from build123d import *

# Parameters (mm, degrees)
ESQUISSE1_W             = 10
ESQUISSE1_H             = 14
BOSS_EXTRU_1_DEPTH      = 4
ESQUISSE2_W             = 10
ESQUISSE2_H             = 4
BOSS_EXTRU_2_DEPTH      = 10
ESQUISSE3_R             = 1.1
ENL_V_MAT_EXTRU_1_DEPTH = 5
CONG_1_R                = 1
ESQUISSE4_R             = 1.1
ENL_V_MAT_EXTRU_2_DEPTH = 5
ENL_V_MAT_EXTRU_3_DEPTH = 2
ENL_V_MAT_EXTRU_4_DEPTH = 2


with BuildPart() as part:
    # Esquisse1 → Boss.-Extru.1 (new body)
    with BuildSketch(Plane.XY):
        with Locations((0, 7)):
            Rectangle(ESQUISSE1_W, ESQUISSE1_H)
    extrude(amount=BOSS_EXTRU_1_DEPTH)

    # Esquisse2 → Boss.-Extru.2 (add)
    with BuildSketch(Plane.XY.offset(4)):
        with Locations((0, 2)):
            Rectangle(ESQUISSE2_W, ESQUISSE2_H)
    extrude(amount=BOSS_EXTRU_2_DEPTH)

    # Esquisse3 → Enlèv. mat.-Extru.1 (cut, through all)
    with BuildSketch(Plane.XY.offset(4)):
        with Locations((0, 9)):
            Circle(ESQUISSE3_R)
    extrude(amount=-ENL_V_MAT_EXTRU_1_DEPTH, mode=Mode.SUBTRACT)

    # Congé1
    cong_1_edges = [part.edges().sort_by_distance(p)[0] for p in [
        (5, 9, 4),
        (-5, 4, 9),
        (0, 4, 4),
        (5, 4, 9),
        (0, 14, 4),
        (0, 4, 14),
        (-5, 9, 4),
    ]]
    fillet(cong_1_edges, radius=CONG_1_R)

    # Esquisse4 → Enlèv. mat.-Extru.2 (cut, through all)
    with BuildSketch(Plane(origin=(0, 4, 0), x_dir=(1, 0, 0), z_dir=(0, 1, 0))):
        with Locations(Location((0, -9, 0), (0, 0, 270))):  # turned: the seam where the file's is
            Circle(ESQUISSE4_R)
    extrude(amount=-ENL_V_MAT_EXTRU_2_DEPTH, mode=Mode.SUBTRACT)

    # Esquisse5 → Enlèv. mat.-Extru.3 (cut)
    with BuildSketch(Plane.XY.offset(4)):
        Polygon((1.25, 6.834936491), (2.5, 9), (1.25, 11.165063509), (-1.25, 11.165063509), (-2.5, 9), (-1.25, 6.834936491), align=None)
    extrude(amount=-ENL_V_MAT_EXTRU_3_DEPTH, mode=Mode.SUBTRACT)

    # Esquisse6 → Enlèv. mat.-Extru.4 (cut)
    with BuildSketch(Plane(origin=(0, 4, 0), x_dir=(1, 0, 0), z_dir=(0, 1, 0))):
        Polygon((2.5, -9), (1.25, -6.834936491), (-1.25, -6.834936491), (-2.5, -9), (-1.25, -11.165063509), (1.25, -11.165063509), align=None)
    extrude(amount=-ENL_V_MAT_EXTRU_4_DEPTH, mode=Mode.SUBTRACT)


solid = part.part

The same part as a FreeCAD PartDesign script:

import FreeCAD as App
import Part
import Sketcher

V = App.Vector
Q = App.Units.Quantity


def edges_at(feature, points):
    """Names of the edges that pass closest to the given points."""
    edges = feature.Shape.Edges
    near = lambda p: min(range(len(edges)), key=lambda i: edges[i].distToShape(Part.Vertex(*p))[0])
    return sorted({f"Edge{near(p) + 1}" for p in points})

doc = App.newDocument("Part")
body = doc.addObject("PartDesign::Body", "Body")

# Sketch on XY plane
sketch1 = body.newObject("Sketcher::SketchObject", "Sketch")
sketch1.AttachmentSupport = (doc.getObject("XY_Plane"), [""])
sketch1.MapMode = "FlatFace"
sketch1.addGeometry(Part.LineSegment(V(-5, 14, 0), V(-5, 0, 0)), False)
sketch1.addGeometry(Part.LineSegment(V(-5, 0, 0), V(5, 0, 0)), False)
sketch1.addGeometry(Part.LineSegment(V(5, 0, 0), V(5, 14, 0)), False)
sketch1.addGeometry(Part.LineSegment(V(5, 14, 0), V(-5, 14, 0)), False)
sketch1.addConstraint(Sketcher.Constraint("Coincident", 0, 2, 1, 1))
sketch1.addConstraint(Sketcher.Constraint("Coincident", 1, 2, 2, 1))
sketch1.addConstraint(Sketcher.Constraint("Coincident", 2, 2, 3, 1))
sketch1.addConstraint(Sketcher.Constraint("Coincident", 3, 2, 0, 1))
sketch1.addConstraint(Sketcher.Constraint("Vertical", 0))
sketch1.addConstraint(Sketcher.Constraint("Horizontal", 1))
sketch1.addConstraint(Sketcher.Constraint("Vertical", 2))
sketch1.addConstraint(Sketcher.Constraint("Horizontal", 3))
sketch1.addConstraint(Sketcher.Constraint("Symmetric", 0, 2, 1, 2, -1, 1))
sketch1.addConstraint(Sketcher.Constraint("DistanceX", 1, 1, 1, 2, Q("10 mm")))
sketch1.addConstraint(Sketcher.Constraint("DistanceY", 0, 2, 0, 1, Q("14 mm")))
pad1 = body.newObject("PartDesign::Pad", "Pad")
pad1.Profile = sketch1
pad1.Length = 4

# Sketch on XY plane
sketch2 = body.newObject("Sketcher::SketchObject", "Sketch001")
sketch2.AttachmentSupport = (doc.getObject("XY_Plane"), [""])
sketch2.MapMode = "FlatFace"
sketch2.AttachmentOffset = App.Placement(V(0, 0, 4), App.Rotation())
sketch2.addGeometry(Part.LineSegment(V(-5, 4, 0), V(-5, 0, 0)), False)
sketch2.addGeometry(Part.LineSegment(V(-5, 0, 0), V(5, 0, 0)), False)
sketch2.addGeometry(Part.LineSegment(V(5, 0, 0), V(5, 4, 0)), False)
sketch2.addGeometry(Part.LineSegment(V(5, 4, 0), V(-5, 4, 0)), False)
sketch2.addConstraint(Sketcher.Constraint("Coincident", 0, 2, 1, 1))
sketch2.addConstraint(Sketcher.Constraint("Coincident", 1, 2, 2, 1))
sketch2.addConstraint(Sketcher.Constraint("Coincident", 2, 2, 3, 1))
sketch2.addConstraint(Sketcher.Constraint("Coincident", 3, 2, 0, 1))
sketch2.addConstraint(Sketcher.Constraint("Vertical", 0))
sketch2.addConstraint(Sketcher.Constraint("Horizontal", 1))
sketch2.addConstraint(Sketcher.Constraint("Vertical", 2))
sketch2.addConstraint(Sketcher.Constraint("Horizontal", 3))
sketch2.addConstraint(Sketcher.Constraint("Symmetric", 0, 2, 1, 2, -1, 1))
sketch2.addConstraint(Sketcher.Constraint("DistanceX", 1, 1, 1, 2, Q("10 mm")))
sketch2.addConstraint(Sketcher.Constraint("DistanceY", 0, 2, 0, 1, Q("4 mm")))
pad2 = body.newObject("PartDesign::Pad", "Pad001")
pad2.Profile = sketch2
pad2.Length = 10

# Sketch on XY plane
sketch3 = body.newObject("Sketcher::SketchObject", "Sketch002")
sketch3.AttachmentSupport = (doc.getObject("XY_Plane"), [""])
sketch3.MapMode = "FlatFace"
sketch3.AttachmentOffset = App.Placement(V(0, 0, 4), App.Rotation())
sketch3.addGeometry(Part.Circle(V(0, 9, 0), V(0, 0, 1), 1.1), False)
sketch3.addConstraint(Sketcher.Constraint("PointOnObject", 0, 3, -2))
sketch3.addConstraint(Sketcher.Constraint("Diameter", 0, Q("2.2 mm")))
sketch3.addConstraint(Sketcher.Constraint("DistanceY", -1, 1, 0, 3, Q("9 mm")))
pocket1 = body.newObject("PartDesign::Pocket", "Pocket")
pocket1.Profile = sketch3
pocket1.Type = "ThroughAll"
doc.recompute()

fillet = body.newObject("PartDesign::Fillet", "Fillet")
fillet.Base = (pocket1, edges_at(pocket1, [
    (5, 9, 4),
    (-5, 4, 9),
    (0, 4, 4),
    (5, 4, 9),
    (0, 14, 4),
    (0, 4, 14),
    (-5, 9, 4),
]))
fillet.Radius = 1

# Sketch on XZ plane
sketch4 = body.newObject("Sketcher::SketchObject", "Sketch003")
sketch4.AttachmentSupport = (doc.getObject("XZ_Plane"), [""])
sketch4.MapMode = "FlatFace"
sketch4.AttachmentOffset = App.Placement(V(0, 0, -4), App.Rotation())
sketch4.addGeometry(Part.Circle(V(0, 9, 0), V(0, 0, 1), 1.1), False)
sketch4.addConstraint(Sketcher.Constraint("PointOnObject", 0, 3, -2))
sketch4.addConstraint(Sketcher.Constraint("Diameter", 0, Q("2.2 mm")))
sketch4.addConstraint(Sketcher.Constraint("DistanceY", -1, 1, 0, 3, Q("9 mm")))
pocket2 = body.newObject("PartDesign::Pocket", "Pocket001")
pocket2.Profile = sketch4
pocket2.Type = "ThroughAll"
pocket2.Reversed = True

# Sketch on XY plane
sketch5 = body.newObject("Sketcher::SketchObject", "Sketch004")
sketch5.AttachmentSupport = (doc.getObject("XY_Plane"), [""])
sketch5.MapMode = "FlatFace"
sketch5.AttachmentOffset = App.Placement(V(0, 0, 4), App.Rotation())
sketch5.addGeometry(Part.LineSegment(V(1.25, 6.834936, 0), V(2.5, 9, 0)), False)
sketch5.addGeometry(Part.LineSegment(V(2.5, 9, 0), V(1.25, 11.165064, 0)), False)
sketch5.addGeometry(Part.LineSegment(V(1.25, 11.165064, 0), V(-1.25, 11.165064, 0)), False)
sketch5.addGeometry(Part.LineSegment(V(-1.25, 11.165064, 0), V(-2.5, 9, 0)), False)
sketch5.addGeometry(Part.LineSegment(V(-2.5, 9, 0), V(-1.25, 6.834936, 0)), False)
sketch5.addGeometry(Part.LineSegment(V(-1.25, 6.834936, 0), V(1.25, 6.834936, 0)), False)
sketch5.addConstraint(Sketcher.Constraint("Coincident", 0, 2, 1, 1))
sketch5.addConstraint(Sketcher.Constraint("Coincident", 1, 2, 2, 1))
sketch5.addConstraint(Sketcher.Constraint("Coincident", 2, 2, 3, 1))
sketch5.addConstraint(Sketcher.Constraint("Coincident", 3, 2, 4, 1))
sketch5.addConstraint(Sketcher.Constraint("Coincident", 4, 2, 5, 1))
sketch5.addConstraint(Sketcher.Constraint("Coincident", 5, 2, 0, 1))
sketch5.addConstraint(Sketcher.Constraint("Horizontal", 2))
sketch5.addConstraint(Sketcher.Constraint("Horizontal", 5))
sketch5.addConstraint(Sketcher.Constraint("Symmetric", 0, 2, 3, 2, -2))
sketch5.addConstraint(Sketcher.Constraint("Parallel", 0, 3))
sketch5.addConstraint(Sketcher.Constraint("Parallel", 1, 4))
sketch5.addConstraint(Sketcher.Constraint("Vertical", 2, 2, 4, 2))
sketch5.addConstraint(Sketcher.Constraint("Vertical", 1, 2, 5, 2))
sketch5.addConstraint(Sketcher.Constraint("Angle", 0, Q("60 deg")))
sketch5.addConstraint(Sketcher.Constraint("DistanceX", 2, 2, 2, 1, Q("2.5 mm")))
sketch5.addConstraint(Sketcher.Constraint("DistanceY", -1, 1, 0, 2, Q("9 mm")))
sketch5.addConstraint(Sketcher.Constraint("DistanceX", 3, 2, 0, 2, Q("5 mm")))
pocket3 = body.newObject("PartDesign::Pocket", "Pocket002")
pocket3.Profile = sketch5
pocket3.Length = 2

# Sketch on XZ plane
sketch6 = body.newObject("Sketcher::SketchObject", "Sketch005")
sketch6.AttachmentSupport = (doc.getObject("XZ_Plane"), [""])
sketch6.MapMode = "FlatFace"
sketch6.AttachmentOffset = App.Placement(V(0, 0, -4), App.Rotation())
sketch6.addGeometry(Part.LineSegment(V(2.5, 9, 0), V(1.25, 6.834936, 0)), False)
sketch6.addGeometry(Part.LineSegment(V(1.25, 6.834936, 0), V(-1.25, 6.834936, 0)), False)
sketch6.addGeometry(Part.LineSegment(V(-1.25, 6.834936, 0), V(-2.5, 9, 0)), False)
sketch6.addGeometry(Part.LineSegment(V(-2.5, 9, 0), V(-1.25, 11.165064, 0)), False)
sketch6.addGeometry(Part.LineSegment(V(-1.25, 11.165064, 0), V(1.25, 11.165064, 0)), False)
sketch6.addGeometry(Part.LineSegment(V(1.25, 11.165064, 0), V(2.5, 9, 0)), False)
sketch6.addConstraint(Sketcher.Constraint("Coincident", 0, 2, 1, 1))
sketch6.addConstraint(Sketcher.Constraint("Coincident", 1, 2, 2, 1))
sketch6.addConstraint(Sketcher.Constraint("Coincident", 2, 2, 3, 1))
sketch6.addConstraint(Sketcher.Constraint("Coincident", 3, 2, 4, 1))
sketch6.addConstraint(Sketcher.Constraint("Coincident", 4, 2, 5, 1))
sketch6.addConstraint(Sketcher.Constraint("Coincident", 5, 2, 0, 1))
sketch6.addConstraint(Sketcher.Constraint("Horizontal", 1))
sketch6.addConstraint(Sketcher.Constraint("Horizontal", 4))
sketch6.addConstraint(Sketcher.Constraint("Symmetric", 2, 2, 5, 2, -2))
sketch6.addConstraint(Sketcher.Constraint("Parallel", 0, 3))
sketch6.addConstraint(Sketcher.Constraint("Parallel", 2, 5))
sketch6.addConstraint(Sketcher.Constraint("Vertical", 1, 2, 3, 2))
sketch6.addConstraint(Sketcher.Constraint("Vertical", 0, 2, 4, 2))
sketch6.addConstraint(Sketcher.Constraint("Angle", 0, Q("-120 deg")))
sketch6.addConstraint(Sketcher.Constraint("DistanceX", 1, 2, 1, 1, Q("2.5 mm")))
sketch6.addConstraint(Sketcher.Constraint("DistanceY", -1, 1, 2, 2, Q("9 mm")))
sketch6.addConstraint(Sketcher.Constraint("DistanceX", 2, 2, 5, 2, Q("5 mm")))
pocket4 = body.newObject("PartDesign::Pocket", "Pocket003")
pocket4.Profile = sketch6
pocket4.Length = 2
pocket4.Reversed = True

doc.recompute()
